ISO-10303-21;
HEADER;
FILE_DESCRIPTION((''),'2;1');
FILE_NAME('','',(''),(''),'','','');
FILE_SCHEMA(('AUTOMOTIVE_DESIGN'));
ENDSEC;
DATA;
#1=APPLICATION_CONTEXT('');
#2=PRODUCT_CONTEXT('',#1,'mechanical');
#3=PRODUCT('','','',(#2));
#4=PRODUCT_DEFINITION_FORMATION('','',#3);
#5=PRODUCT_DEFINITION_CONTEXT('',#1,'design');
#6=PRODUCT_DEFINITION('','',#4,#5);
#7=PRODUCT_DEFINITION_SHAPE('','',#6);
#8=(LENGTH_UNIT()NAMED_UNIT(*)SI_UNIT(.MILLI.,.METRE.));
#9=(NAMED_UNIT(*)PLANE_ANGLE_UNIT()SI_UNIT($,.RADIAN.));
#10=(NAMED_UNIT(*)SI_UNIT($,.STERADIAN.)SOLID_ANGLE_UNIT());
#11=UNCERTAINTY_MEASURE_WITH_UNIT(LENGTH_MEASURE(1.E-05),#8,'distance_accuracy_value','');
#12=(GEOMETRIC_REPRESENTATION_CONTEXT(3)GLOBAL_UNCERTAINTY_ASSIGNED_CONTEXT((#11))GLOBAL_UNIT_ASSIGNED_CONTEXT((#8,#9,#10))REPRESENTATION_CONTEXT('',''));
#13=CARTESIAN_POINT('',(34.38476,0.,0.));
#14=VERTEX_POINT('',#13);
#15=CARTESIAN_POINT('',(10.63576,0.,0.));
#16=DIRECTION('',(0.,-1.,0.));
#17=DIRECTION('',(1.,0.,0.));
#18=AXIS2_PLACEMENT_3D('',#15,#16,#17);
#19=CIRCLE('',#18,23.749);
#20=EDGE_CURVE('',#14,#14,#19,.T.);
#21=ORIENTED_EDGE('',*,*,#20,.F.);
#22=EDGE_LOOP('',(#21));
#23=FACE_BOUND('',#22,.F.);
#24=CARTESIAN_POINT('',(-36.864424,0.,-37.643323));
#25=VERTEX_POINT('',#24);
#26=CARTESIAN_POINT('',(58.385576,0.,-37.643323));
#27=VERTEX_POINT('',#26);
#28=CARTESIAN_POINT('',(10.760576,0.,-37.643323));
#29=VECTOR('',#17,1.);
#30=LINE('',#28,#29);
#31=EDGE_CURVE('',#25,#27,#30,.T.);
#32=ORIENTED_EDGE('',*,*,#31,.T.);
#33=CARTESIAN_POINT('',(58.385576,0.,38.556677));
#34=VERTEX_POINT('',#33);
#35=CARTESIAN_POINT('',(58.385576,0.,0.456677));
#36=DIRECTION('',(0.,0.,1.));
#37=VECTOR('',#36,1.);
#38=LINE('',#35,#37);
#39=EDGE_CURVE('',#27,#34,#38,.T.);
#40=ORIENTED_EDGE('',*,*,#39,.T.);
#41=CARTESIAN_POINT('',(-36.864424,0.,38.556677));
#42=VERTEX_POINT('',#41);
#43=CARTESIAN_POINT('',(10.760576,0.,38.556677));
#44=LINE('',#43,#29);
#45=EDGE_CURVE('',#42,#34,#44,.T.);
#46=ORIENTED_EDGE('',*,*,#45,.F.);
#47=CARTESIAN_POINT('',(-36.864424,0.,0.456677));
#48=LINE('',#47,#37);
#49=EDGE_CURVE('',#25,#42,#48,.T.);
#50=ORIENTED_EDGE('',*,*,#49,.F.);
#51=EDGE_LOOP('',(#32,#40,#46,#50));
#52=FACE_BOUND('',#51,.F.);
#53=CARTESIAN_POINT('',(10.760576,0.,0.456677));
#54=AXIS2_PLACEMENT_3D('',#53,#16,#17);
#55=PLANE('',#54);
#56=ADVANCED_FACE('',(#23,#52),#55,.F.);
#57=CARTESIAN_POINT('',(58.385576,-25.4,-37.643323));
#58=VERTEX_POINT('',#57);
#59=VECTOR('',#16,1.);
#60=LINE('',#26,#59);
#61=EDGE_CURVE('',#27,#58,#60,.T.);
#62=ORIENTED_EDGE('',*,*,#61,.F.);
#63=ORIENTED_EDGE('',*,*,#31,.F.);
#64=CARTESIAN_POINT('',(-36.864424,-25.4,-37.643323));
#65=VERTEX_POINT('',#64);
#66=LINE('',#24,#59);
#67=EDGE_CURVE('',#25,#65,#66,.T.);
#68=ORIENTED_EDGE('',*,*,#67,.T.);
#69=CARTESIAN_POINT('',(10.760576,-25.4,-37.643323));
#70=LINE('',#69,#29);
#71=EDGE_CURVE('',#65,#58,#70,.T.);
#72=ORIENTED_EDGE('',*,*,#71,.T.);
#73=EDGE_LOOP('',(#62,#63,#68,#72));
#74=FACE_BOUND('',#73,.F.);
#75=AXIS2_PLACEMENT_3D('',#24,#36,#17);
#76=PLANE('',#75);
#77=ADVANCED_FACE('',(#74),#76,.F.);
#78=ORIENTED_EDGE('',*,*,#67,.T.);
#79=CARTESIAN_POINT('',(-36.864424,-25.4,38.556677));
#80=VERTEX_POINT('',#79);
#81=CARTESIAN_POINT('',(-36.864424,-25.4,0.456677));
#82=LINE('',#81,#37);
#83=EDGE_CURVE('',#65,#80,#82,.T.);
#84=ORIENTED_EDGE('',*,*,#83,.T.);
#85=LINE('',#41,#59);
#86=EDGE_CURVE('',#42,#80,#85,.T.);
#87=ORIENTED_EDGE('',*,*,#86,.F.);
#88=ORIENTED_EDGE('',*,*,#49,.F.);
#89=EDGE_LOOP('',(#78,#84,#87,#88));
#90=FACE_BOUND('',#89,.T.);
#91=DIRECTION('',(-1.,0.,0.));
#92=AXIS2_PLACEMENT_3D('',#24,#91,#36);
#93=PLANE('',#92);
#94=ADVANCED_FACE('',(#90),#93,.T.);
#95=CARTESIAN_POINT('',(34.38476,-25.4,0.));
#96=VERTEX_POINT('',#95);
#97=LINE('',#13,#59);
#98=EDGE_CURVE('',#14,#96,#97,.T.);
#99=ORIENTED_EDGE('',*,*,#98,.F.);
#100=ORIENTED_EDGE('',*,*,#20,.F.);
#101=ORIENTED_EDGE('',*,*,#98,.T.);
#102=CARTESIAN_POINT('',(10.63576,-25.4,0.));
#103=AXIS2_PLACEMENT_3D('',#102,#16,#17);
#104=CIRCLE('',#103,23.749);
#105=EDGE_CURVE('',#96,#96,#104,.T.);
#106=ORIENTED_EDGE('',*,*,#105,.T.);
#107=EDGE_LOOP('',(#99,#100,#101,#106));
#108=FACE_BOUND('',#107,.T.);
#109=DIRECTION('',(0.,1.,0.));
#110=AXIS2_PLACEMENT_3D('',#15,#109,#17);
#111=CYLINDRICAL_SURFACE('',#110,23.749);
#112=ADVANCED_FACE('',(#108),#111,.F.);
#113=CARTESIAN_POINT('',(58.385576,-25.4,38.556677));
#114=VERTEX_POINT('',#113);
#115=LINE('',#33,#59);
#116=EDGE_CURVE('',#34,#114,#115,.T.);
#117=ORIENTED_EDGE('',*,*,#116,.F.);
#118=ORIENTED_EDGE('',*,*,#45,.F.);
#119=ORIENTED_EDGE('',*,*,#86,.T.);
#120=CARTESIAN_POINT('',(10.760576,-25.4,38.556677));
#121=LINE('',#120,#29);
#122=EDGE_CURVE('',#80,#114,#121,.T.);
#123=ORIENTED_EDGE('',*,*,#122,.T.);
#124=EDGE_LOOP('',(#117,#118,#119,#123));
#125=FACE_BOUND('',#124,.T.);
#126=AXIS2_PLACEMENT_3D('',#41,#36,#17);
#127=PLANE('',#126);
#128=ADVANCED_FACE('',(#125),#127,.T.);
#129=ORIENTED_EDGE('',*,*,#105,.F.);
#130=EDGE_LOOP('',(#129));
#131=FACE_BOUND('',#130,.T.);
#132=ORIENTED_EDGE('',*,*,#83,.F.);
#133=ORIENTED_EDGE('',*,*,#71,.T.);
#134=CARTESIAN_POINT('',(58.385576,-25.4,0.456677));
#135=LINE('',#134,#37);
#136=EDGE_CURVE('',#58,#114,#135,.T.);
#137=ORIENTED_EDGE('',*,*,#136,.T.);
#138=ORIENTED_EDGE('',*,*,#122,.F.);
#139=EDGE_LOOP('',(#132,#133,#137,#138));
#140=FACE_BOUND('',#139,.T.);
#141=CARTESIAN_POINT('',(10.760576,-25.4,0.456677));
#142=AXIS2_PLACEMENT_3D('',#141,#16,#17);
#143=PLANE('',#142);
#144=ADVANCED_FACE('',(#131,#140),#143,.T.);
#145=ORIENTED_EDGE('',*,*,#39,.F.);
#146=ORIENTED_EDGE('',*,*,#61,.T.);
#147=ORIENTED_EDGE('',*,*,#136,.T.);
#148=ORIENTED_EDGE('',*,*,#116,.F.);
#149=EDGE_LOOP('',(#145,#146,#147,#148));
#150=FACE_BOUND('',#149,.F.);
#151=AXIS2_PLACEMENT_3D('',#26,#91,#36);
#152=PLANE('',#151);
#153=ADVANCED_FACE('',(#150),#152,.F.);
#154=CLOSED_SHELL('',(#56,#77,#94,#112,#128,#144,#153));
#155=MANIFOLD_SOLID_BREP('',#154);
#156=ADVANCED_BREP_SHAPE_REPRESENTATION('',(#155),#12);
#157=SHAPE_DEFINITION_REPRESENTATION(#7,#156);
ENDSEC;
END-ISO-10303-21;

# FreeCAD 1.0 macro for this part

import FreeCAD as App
import Part
import Sketcher

V = App.Vector
Q = App.Units.Quantity


def add_polygon(sketch, points):
    """Adds a closed chain of lines whose ends are joined by coincident constraints."""
    first, n = sketch.GeometryCount, len(points)
    for a, b in zip(points, points[1:] + points[:1]):
        sketch.addGeometry(Part.LineSegment(App.Vector(*a, 0), App.Vector(*b, 0)), False)
    for i in range(n):
        sketch.addConstraint(Sketcher.Constraint("Coincident", first + i, 2, first + (i + 1) % n, 1))

doc = App.newDocument("Part")
params = doc.addObject("Spreadsheet::Sheet", "Params")
for row, (alias, value) in enumerate([
    ("sketch1_diameter", "1.87 in"),
    ("sketch1_height", "3 in"),
    ("sketch1_width", "3.75 in"),
    ("pad1_length", "1 in"),
    ("sketch2_diameter", "1.87 in"),
    ("sketch2_height", "3 in"),
    ("sketch2_width", "3.75 in"),
    ("pocket1_length", "1 in"),
], start=1):
    params.set(f"A{row}", alias)
    params.set(f"B{row}", "=" + value)
    params.setAlias(f"B{row}", alias)

body = doc.addObject("PartDesign::Body", "Body")

sketch1 = body.newObject("Sketcher::SketchObject", "Sketch")
sketch1.AttachmentSupport = (doc.getObject("XZ_Plane"), [""])
sketch1.MapMode = "FlatFace"
add_polygon(sketch1, [(-37, 39), (-37, -38), (58, -38), (58, 39)])
sketch1.addGeometry(Part.Circle(V(11, 0, 0), V(0, 0, 1), 24), False)
sketch1.addConstraint(Sketcher.Constraint("Vertical", 0))
sketch1.addConstraint(Sketcher.Constraint("Horizontal", 1))
sketch1.addConstraint(Sketcher.Constraint("Vertical", 2))
sketch1.addConstraint(Sketcher.Constraint("Horizontal", 3))
sketch1.addConstraint(Sketcher.Constraint("PointOnObject", 4, 3, -1))
sketch1.addConstraint(Sketcher.Constraint("Diameter", 4, Q("1.87 in")))
sketch1.addConstraint(Sketcher.Constraint("DistanceY", 0, 2, 0, 1, Q("3 in")))
sketch1.addConstraint(Sketcher.Constraint("DistanceX", 1, 1, 1, 2, Q("3.75 in")))
sketch1.addConstraint(Sketcher.Constraint("DistanceX", -1, 1, 4, 3, Q("10.63576 mm")))
sketch1.addConstraint(Sketcher.Constraint("DistanceX", 0, 2, -1, 1, Q("36.864424 mm")))
sketch1.addConstraint(Sketcher.Constraint("DistanceY", 0, 2, -1, 1, Q("37.643323 mm")))
sketch1.setExpression("Constraints[9]", "Params.sketch1_diameter")
sketch1.setExpression("Constraints[10]", "Params.sketch1_height")
sketch1.setExpression("Constraints[11]", "Params.sketch1_width")
pad1 = body.newObject("PartDesign::Pad", "Pad")
pad1.Profile = sketch1
pad1.setExpression("Length", "Params.pad1_length")

sketch2 = body.newObject("Sketcher::SketchObject", "Sketch001")
sketch2.AttachmentSupport = (doc.getObject("XZ_Plane"), [""])
sketch2.MapMode = "FlatFace"
add_polygon(sketch2, [(-37, 39), (-37, -38), (58, -38), (58, 39)])
sketch2.addGeometry(Part.Circle(V(11, 0, 0), V(0, 0, 1), 24), False)
sketch2.addConstraint(Sketcher.Constraint("Vertical", 0))
sketch2.addConstraint(Sketcher.Constraint("Horizontal", 1))
sketch2.addConstraint(Sketcher.Constraint("Vertical", 2))
sketch2.addConstraint(Sketcher.Constraint("Horizontal", 3))
sketch2.addConstraint(Sketcher.Constraint("PointOnObject", 4, 3, -1))
sketch2.addConstraint(Sketcher.Constraint("Diameter", 4, Q("1.87 in")))
sketch2.addConstraint(Sketcher.Constraint("DistanceY", 0, 2, 0, 1, Q("3 in")))
sketch2.addConstraint(Sketcher.Constraint("DistanceX", 1, 1, 1, 2, Q("3.75 in")))
sketch2.addConstraint(Sketcher.Constraint("DistanceX", -1, 1, 4, 3, Q("10.63576 mm")))
sketch2.addConstraint(Sketcher.Constraint("DistanceX", 0, 2, -1, 1, Q("36.864424 mm")))
sketch2.addConstraint(Sketcher.Constraint("DistanceY", 0, 2, -1, 1, Q("37.643323 mm")))
sketch2.setExpression("Constraints[9]", "Params.sketch2_diameter")
sketch2.setExpression("Constraints[10]", "Params.sketch2_height")
sketch2.setExpression("Constraints[11]", "Params.sketch2_width")
pocket1 = body.newObject("PartDesign::Pocket", "Pocket")
pocket1.Profile = sketch2
pocket1.setExpression("Length", "Params.pocket1_length")

doc.recompute()
